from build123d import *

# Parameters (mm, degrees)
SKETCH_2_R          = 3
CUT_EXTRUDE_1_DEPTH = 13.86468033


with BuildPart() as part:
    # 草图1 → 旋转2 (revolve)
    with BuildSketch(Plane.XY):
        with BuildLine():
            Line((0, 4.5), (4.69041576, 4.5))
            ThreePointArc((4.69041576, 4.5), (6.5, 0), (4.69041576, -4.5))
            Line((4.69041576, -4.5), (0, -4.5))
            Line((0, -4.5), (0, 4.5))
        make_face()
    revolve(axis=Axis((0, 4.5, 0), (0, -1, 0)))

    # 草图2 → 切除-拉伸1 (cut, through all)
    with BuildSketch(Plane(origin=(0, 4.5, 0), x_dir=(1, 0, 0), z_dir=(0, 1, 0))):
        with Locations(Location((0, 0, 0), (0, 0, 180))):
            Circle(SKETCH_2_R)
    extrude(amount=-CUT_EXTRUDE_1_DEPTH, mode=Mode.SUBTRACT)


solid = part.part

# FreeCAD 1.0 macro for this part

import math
import FreeCAD as App
import Part
import Sketcher
from FreeCAD import Vector
Q = App.Units.Quantity

doc = App.newDocument("Part")
body = doc.addObject("PartDesign::Body", "Body")

sketch1 = body.newObject("Sketcher::SketchObject", "Sketch")
sketch1.AttachmentSupport = (doc.getObject("XY_Plane"), [""])
sketch1.MapMode = "FlatFace"
sketch1.addGeometry([
    Part.LineSegment(Vector(4.7, 4.5, 0), Vector(0, 4.5, 0)),
    Part.LineSegment(Vector(0, 4.5, 0), Vector(0, -4.5, 0)),
    Part.LineSegment(Vector(0, -4.5, 0), Vector(4.7, -4.5, 0)),
    Part.ArcOfCircle(Part.Circle(Vector(0, 0, 0), Vector(0, 0, 1), 6.5), math.radians(-44), math.radians(44)),
], False)
sketch1.addConstraint([
    Sketcher.Constraint("Coincident", 0, 2, 1, 1),
    Sketcher.Constraint("Coincident", 1, 2, 2, 1),
    Sketcher.Constraint("Coincident", 2, 2, 3, 1),
    Sketcher.Constraint("Coincident", 3, 2, 0, 1),
    Sketcher.Constraint("Horizontal", 0),
    Sketcher.Constraint("Vertical", 1),
    Sketcher.Constraint("Horizontal", 2),
    Sketcher.Constraint("Coincident", 3, 3, -1, 1),
    Sketcher.Constraint("Symmetric", 0, 2, 1, 2, -1, 1),
    Sketcher.Constraint("Radius", 3, Q("6.5 mm")),
    Sketcher.Constraint("DistanceY", 1, 2, 1, 1, Q("9 mm")),
])
revolution = body.newObject("PartDesign::Revolution", "Revolution")
revolution.Profile = sketch1
revolution.ReferenceAxis = (sketch1, ["V_Axis"])
revolution.Angle = 360

sketch2 = body.newObject("Sketcher::SketchObject", "Sketch001")
sketch2.AttachmentSupport = (doc.getObject("XZ_Plane"), [""])
sketch2.MapMode = "FlatFace"
sketch2.AttachmentOffset = App.Placement(Vector(0, 0, -4.5), App.Rotation())
sketch2.addGeometry(Part.Circle(Vector(0, 0, 0), Vector(0, 0, 1), 3), False)
sketch2.addConstraint([
    Sketcher.Constraint("Coincident", 0, 3, -1, 1),
    Sketcher.Constraint("Diameter", 0, Q("6 mm")),
])
pocket1 = body.newObject("PartDesign::Pocket", "Pocket")
pocket1.Profile = sketch2
pocket1.Type = "ThroughAll"
pocket1.Reversed = True

doc.recompute()
